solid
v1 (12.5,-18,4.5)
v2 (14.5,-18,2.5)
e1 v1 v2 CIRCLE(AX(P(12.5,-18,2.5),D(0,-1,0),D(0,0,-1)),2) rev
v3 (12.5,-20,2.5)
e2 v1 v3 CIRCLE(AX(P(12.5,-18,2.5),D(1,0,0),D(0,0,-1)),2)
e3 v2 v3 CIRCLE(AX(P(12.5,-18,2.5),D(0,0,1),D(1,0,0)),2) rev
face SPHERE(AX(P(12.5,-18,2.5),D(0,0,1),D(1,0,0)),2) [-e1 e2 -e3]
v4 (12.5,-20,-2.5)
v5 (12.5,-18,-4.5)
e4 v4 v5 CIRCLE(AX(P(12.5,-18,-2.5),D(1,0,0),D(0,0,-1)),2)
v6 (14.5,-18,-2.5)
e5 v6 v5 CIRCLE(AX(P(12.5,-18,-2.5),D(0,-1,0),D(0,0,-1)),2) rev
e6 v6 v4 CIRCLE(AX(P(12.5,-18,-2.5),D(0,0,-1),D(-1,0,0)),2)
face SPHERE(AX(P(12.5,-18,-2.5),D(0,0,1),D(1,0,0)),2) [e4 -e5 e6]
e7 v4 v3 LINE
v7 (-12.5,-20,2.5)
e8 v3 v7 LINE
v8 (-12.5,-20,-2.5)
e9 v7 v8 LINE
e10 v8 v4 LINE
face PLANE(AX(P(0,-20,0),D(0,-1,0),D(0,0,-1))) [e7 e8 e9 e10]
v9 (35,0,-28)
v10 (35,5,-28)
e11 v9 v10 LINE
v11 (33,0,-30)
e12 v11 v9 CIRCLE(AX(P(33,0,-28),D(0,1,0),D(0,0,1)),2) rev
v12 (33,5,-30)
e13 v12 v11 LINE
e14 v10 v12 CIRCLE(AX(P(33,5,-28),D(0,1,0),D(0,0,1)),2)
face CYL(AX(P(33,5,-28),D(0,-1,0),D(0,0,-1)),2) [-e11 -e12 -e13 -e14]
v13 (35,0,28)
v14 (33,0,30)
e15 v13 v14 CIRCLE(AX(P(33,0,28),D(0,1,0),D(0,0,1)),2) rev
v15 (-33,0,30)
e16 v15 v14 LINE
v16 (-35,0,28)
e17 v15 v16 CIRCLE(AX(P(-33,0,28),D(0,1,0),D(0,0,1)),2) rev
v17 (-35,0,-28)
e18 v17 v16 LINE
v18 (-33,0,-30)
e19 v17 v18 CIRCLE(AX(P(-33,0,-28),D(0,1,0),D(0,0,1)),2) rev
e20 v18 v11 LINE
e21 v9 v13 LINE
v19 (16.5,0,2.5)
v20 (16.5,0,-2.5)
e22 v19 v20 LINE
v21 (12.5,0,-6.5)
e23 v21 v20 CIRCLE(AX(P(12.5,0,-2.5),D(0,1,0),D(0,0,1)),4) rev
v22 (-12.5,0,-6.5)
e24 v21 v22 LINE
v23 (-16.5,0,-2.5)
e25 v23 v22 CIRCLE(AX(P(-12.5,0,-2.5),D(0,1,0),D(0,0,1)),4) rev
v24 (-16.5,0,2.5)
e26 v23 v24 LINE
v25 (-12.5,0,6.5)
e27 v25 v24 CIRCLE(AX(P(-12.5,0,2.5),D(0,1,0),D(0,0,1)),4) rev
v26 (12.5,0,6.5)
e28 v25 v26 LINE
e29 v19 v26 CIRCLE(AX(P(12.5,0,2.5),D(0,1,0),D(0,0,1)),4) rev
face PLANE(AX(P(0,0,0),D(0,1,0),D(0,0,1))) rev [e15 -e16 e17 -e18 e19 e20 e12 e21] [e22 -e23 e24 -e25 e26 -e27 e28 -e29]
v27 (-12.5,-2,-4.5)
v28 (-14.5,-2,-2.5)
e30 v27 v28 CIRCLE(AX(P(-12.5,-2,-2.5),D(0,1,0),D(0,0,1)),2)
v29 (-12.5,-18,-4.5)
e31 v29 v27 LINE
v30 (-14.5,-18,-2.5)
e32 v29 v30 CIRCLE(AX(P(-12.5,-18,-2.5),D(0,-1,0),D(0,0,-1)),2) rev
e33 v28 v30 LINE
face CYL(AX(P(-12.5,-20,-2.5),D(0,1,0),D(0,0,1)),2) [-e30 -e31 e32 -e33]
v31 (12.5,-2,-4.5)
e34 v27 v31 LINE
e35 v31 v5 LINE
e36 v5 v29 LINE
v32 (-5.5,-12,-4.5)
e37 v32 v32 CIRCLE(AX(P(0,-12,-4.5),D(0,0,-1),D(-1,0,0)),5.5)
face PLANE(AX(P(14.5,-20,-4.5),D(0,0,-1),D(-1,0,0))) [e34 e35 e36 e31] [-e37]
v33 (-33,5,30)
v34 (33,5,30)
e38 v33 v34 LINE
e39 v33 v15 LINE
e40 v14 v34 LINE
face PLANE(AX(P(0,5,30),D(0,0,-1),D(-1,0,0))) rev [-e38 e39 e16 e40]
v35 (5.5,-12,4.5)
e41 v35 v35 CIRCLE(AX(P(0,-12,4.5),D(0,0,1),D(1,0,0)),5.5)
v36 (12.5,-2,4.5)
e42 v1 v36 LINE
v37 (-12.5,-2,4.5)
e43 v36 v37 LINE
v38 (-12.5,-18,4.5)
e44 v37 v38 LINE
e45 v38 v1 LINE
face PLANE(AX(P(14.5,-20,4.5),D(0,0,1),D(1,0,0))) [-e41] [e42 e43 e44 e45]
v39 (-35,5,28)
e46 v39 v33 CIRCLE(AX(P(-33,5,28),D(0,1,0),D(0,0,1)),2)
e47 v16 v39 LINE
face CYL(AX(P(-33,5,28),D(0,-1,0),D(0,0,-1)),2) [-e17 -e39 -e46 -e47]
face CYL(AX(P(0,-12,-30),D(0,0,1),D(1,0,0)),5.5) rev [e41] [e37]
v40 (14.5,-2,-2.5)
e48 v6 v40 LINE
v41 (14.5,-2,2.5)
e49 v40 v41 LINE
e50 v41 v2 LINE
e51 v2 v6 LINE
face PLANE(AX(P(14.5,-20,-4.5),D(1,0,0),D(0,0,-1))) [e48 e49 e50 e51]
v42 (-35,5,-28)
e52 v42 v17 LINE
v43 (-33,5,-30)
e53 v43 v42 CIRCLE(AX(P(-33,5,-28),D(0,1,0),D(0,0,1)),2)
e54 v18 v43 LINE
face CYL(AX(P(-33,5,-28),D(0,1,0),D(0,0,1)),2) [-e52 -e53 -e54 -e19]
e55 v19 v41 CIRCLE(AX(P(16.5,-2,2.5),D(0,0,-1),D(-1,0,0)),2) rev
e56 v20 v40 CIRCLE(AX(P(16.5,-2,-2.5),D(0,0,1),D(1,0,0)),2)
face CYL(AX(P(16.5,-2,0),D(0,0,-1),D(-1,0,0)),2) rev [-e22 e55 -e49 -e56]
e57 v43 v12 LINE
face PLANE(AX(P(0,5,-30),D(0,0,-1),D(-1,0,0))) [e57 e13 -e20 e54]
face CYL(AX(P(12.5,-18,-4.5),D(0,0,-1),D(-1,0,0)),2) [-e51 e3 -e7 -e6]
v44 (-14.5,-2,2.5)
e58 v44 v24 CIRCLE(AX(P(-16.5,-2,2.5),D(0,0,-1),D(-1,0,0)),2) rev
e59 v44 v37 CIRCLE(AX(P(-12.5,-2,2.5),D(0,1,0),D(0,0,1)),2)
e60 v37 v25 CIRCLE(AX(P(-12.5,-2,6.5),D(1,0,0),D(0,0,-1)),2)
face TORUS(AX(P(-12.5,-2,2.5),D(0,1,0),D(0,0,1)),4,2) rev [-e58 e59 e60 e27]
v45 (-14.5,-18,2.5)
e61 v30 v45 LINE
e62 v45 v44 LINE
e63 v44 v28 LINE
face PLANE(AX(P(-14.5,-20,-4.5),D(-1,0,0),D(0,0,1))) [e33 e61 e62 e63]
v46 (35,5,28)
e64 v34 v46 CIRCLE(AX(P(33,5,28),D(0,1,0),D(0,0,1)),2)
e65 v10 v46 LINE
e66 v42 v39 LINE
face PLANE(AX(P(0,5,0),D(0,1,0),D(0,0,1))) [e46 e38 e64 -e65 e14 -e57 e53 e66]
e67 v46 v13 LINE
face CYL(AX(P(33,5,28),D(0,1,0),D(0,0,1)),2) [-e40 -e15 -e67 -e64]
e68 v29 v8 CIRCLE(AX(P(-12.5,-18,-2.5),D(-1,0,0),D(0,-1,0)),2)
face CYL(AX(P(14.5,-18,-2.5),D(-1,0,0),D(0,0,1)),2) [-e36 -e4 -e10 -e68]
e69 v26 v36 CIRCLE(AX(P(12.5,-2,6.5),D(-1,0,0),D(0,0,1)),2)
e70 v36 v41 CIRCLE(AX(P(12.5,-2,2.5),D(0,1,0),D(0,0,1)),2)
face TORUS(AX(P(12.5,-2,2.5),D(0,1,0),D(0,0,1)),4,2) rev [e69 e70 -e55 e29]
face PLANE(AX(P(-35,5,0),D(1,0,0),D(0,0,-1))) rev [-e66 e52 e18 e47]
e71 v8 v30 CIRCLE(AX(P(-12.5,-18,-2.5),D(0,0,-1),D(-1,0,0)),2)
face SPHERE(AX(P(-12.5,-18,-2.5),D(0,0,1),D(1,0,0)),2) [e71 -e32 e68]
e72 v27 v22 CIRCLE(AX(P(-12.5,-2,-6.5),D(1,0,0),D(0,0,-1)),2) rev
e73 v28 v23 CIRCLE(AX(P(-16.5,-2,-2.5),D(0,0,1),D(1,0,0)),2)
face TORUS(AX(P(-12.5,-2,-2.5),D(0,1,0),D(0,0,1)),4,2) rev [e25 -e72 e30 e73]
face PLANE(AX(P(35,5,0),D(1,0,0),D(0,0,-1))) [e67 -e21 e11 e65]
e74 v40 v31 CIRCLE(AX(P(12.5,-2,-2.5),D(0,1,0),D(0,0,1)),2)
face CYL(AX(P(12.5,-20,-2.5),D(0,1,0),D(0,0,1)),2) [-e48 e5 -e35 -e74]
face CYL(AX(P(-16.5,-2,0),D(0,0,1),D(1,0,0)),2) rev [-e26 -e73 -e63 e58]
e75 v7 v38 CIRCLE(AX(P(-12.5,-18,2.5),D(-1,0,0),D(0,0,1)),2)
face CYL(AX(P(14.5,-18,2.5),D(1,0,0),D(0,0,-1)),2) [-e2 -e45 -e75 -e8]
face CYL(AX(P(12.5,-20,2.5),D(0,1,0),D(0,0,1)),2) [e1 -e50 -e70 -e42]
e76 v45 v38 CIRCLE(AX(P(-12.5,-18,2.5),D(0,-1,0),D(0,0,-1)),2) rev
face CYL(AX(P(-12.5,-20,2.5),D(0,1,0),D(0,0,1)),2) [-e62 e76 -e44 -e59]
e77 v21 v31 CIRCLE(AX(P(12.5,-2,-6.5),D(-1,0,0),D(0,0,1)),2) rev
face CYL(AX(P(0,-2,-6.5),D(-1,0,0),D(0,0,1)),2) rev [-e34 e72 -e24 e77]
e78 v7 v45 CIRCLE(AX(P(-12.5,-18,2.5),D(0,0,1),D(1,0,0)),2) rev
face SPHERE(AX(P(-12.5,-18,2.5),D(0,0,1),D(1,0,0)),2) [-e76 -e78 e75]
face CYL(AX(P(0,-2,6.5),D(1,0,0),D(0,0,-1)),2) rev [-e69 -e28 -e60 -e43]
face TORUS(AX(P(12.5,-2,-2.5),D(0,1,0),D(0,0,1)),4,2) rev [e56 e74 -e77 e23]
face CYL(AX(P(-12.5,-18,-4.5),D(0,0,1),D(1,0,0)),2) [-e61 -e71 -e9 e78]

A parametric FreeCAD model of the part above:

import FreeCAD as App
import Part
import Sketcher


def edges_at(feature, points):
    """Names of the edges that pass closest to the given points."""
    edges = feature.Shape.Edges
    near = lambda p: min(range(len(edges)), key=lambda i: edges[i].distToShape(Part.Vertex(*p))[0])
    return sorted({f"Edge{near(p) + 1}" for p in points})


def add_polygon(sketch, points):
    """Adds a closed chain of lines whose ends are joined by coincident constraints."""
    first, n = sketch.GeometryCount, len(points)
    for a, b in zip(points, points[1:] + points[:1]):
        sketch.addGeometry(Part.LineSegment(App.Vector(*a, 0), App.Vector(*b, 0)), False)
    for i in range(n):
        sketch.addConstraint(Sketcher.Constraint("Coincident", first + i, 2, first + (i + 1) % n, 1))

doc = App.newDocument("Part")
body = doc.addObject("PartDesign::Body", "Body")

# Sketch on XZ plane
sketch1 = body.newObject("Sketcher::SketchObject", "Sketch")
sketch1.AttachmentSupport = (doc.getObject("XZ_Plane"), [""])
sketch1.MapMode = "FlatFace"
add_polygon(sketch1, [(-35, -30), (-35, 30), (35, 30), (35, -30)])  # lines 0-3
sketch1.addConstraint([
    Sketcher.Constraint("Vertical", 0),
    Sketcher.Constraint("Horizontal", 1),
    Sketcher.Constraint("Vertical", 2),
    Sketcher.Constraint("Horizontal", 3),
    Sketcher.Constraint("Symmetric", 0, 2, 2, 2, -1, 1),
    Sketcher.Constraint("DistanceX", 1, 1, 1, 2, 70.0),
    Sketcher.Constraint("DistanceY", 0, 1, 0, 2, 60.0),
])
pad1 = body.newObject("PartDesign::Pad", "Pad")
pad1.Profile = sketch1
pad1.Length = 5
pad1.Reversed = True

# Sketch on XZ plane
sketch2 = body.newObject("Sketcher::SketchObject", "Sketch001")
sketch2.AttachmentSupport = (doc.getObject("XZ_Plane"), [""])
sketch2.MapMode = "FlatFace"
add_polygon(sketch2, [(14, 4), (14, -4), (-14, -4), (-14, 4)])  # lines 0-3
sketch2.addConstraint([
    Sketcher.Constraint("Vertical", 0),
    Sketcher.Constraint("Horizontal", 1),
    Sketcher.Constraint("Vertical", 2),
    Sketcher.Constraint("Horizontal", 3),
    Sketcher.Constraint("Symmetric", 0, 2, 2, 2, -1, 1),
    Sketcher.Constraint("DistanceX", 1, 2, 1, 1, 29.0),
    Sketcher.Constraint("DistanceY", 0, 2, 0, 1, 9.0),
])
pad2 = body.newObject("PartDesign::Pad", "Pad001")
pad2.Profile = sketch2
pad2.Length = 20

# Sketch on XY plane
sketch3 = body.newObject("Sketcher::SketchObject", "Sketch002")
sketch3.AttachmentSupport = (doc.getObject("XY_Plane"), [""])
sketch3.MapMode = "FlatFace"
sketch3.AttachmentOffset = App.Placement(App.Vector(0, 0, 4.5), App.Rotation())
sketch3.addGeometry(Part.Circle(App.Vector(0, -12, 0), App.Vector(0, 0, 1), 6), False)
sketch3.addConstraint([
    Sketcher.Constraint("PointOnObject", 0, 3, -2),
    Sketcher.Constraint("Diameter", 0, 11.0),
    Sketcher.Constraint("DistanceY", 0, 3, -1, 1, 12.0),
])
pocket1 = body.newObject("PartDesign::Pocket", "Pocket")
pocket1.Profile = sketch3
pocket1.Type = "ThroughAll"
doc.recompute()

fillet = body.newObject("PartDesign::Fillet", "Fillet")
fillet.Base = (pocket1, edges_at(pocket1, [
    (-14.5, -20, 0),
    (-14.5, -10, 4.5),
    (0, -20, -4.5),
    (-14.5, -10, -4.5),
    (14.5, -20, 0),
    (14.5, -10, -4.5),
    (0, -20, 4.5),
    (14.5, -10, 4.5),
    (-14.5, 0, 0),
    (0, 0, 4.5),
    (14.5, 0, 0),
    (0, 0, -4.5),
    (35, 2.5, 30),
    (-35, 2.5, 30),
    (-35, 2.5, -30),
    (35, 2.5, -30),
]))
fillet.Radius = 2

doc.recompute()
